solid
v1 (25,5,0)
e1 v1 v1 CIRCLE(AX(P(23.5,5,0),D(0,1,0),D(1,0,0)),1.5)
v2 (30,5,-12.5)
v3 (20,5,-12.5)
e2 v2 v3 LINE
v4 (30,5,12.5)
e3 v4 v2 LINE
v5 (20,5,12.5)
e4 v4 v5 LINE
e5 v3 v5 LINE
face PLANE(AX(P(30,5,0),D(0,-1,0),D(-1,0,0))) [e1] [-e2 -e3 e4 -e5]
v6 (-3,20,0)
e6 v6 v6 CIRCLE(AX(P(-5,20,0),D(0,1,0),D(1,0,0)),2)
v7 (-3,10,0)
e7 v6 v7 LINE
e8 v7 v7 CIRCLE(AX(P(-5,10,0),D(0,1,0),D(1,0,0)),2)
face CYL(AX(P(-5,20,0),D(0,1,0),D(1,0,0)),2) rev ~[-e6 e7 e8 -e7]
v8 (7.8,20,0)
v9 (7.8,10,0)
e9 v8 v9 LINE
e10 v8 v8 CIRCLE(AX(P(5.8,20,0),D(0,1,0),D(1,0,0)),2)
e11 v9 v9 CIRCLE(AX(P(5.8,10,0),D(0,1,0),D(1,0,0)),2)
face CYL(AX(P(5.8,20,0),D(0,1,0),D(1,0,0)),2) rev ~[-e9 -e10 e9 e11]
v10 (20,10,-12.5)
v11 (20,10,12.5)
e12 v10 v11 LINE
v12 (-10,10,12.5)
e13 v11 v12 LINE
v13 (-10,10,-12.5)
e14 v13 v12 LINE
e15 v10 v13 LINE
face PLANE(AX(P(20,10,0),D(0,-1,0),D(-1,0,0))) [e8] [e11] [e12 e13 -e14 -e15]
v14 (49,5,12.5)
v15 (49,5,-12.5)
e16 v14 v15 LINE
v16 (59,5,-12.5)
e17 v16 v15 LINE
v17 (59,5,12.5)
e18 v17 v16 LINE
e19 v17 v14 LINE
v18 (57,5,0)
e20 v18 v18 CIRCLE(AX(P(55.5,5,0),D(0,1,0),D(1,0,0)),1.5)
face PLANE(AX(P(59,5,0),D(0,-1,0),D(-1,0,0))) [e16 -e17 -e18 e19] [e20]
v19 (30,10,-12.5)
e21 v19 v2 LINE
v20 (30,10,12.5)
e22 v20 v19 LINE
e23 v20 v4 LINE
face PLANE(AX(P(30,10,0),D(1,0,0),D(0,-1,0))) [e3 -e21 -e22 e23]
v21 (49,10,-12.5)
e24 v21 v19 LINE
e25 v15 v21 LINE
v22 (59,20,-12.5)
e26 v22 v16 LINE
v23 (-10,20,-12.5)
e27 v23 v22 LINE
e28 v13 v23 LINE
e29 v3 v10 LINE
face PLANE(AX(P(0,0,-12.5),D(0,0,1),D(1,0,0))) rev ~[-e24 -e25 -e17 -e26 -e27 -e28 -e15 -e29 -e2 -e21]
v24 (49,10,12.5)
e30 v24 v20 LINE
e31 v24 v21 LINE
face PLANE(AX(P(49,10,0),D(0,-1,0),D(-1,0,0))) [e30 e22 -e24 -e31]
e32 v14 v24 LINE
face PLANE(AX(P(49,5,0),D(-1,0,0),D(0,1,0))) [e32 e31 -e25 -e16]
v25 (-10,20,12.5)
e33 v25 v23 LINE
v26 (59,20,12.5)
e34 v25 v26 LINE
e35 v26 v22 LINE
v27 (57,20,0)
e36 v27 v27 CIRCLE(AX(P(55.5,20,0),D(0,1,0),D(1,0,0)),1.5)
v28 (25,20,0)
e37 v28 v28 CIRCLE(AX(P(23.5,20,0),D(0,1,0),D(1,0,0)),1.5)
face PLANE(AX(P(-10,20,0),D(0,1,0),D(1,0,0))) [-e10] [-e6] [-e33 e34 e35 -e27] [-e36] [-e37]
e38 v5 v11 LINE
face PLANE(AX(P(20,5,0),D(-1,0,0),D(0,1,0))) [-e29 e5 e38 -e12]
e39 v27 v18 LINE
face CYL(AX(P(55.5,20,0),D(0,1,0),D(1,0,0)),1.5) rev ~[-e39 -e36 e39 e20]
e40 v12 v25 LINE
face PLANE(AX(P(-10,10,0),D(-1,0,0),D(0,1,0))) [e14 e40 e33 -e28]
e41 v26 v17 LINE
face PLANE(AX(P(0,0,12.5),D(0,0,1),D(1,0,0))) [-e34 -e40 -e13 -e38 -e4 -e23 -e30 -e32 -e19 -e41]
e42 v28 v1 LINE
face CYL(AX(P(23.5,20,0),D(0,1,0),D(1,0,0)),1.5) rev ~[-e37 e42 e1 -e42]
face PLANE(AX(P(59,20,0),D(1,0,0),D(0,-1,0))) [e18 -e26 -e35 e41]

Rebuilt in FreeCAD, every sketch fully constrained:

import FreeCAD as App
import Part
import Sketcher


def add_polygon(sketch, points):
    """Adds a closed chain of lines whose ends are joined by coincident constraints."""
    first, n = sketch.GeometryCount, len(points)
    for a, b in zip(points, points[1:] + points[:1]):
        sketch.addGeometry(Part.LineSegment(App.Vector(*a, 0), App.Vector(*b, 0)), False)
    for i in range(n):
        sketch.addConstraint(Sketcher.Constraint("Coincident", first + i, 2, first + (i + 1) % n, 1))

doc = App.newDocument("Part")
body = doc.addObject("PartDesign::Body", "Body")

sketch1 = body.newObject("Sketcher::SketchObject", "Sketch")
sketch1.AttachmentSupport = (doc.getObject("XY_Plane"), [""])
sketch1.MapMode = "FlatFace"
add_polygon(sketch1, [(-10, 20), (-10, 10), (20, 10), (20, 5), (30, 5), (30, 10), (49, 10), (49, 5), (59, 5), (59, 20)])
sketch1.addConstraint(Sketcher.Constraint("Vertical", 0))
sketch1.addConstraint(Sketcher.Constraint("Horizontal", 1))
sketch1.addConstraint(Sketcher.Constraint("Vertical", 2))
sketch1.addConstraint(Sketcher.Constraint("Horizontal", 3))
sketch1.addConstraint(Sketcher.Constraint("Vertical", 4))
sketch1.addConstraint(Sketcher.Constraint("Horizontal", 5))
sketch1.addConstraint(Sketcher.Constraint("Vertical", 6))
sketch1.addConstraint(Sketcher.Constraint("Horizontal", 7))
sketch1.addConstraint(Sketcher.Constraint("Vertical", 8))
sketch1.addConstraint(Sketcher.Constraint("Horizontal", 9))
sketch1.addConstraint(Sketcher.Constraint("Horizontal", 1, 2, 4, 2))
sketch1.addConstraint(Sketcher.Constraint("Horizontal", 3, 2, 6, 2))
sketch1.addConstraint(Sketcher.Constraint("Equal", 3, 7))
sketch1.addConstraint(Sketcher.Constraint("Equal", 7, 0))
sketch1.addConstraint(Sketcher.Constraint("DistanceX", 1, 1, 1, 2, 30.0))
sketch1.addConstraint(Sketcher.Constraint("DistanceX", 3, 1, 3, 2, 10.0))
sketch1.addConstraint(Sketcher.Constraint("DistanceX", 5, 1, 5, 2, 19.0))
sketch1.addConstraint(Sketcher.Constraint("DistanceY", 2, 2, 2, 1, 5.0))
sketch1.addConstraint(Sketcher.Constraint("DistanceX", 0, 2, -1, 1, 10.0))
sketch1.addConstraint(Sketcher.Constraint("DistanceY", -1, 1, 0, 2, 10.0))
pad1 = body.newObject("PartDesign::Pad", "Pad")
pad1.Profile = sketch1
pad1.Length = 25
pad1.Midplane = True

sketch2 = body.newObject("Sketcher::SketchObject", "Sketch001")
sketch2.AttachmentSupport = (doc.getObject("XZ_Plane"), [""])
sketch2.MapMode = "FlatFace"
sketch2.AttachmentOffset = App.Placement(App.Vector(0, 0, -20), App.Rotation())
sketch2.addGeometry(Part.Circle(App.Vector(-5, 0, 0), App.Vector(0, 0, 1), 2), False)
sketch2.addGeometry(Part.Circle(App.Vector(5.8, 0, 0), App.Vector(0, 0, 1), 2), False)
sketch2.addGeometry(Part.Circle(App.Vector(55.5, 0, 0), App.Vector(0, 0, 1), 1.5), False)
sketch2.addGeometry(Part.Circle(App.Vector(23.5, 0, 0), App.Vector(0, 0, 1), 1.5), False)
sketch2.addConstraint(Sketcher.Constraint("Equal", 0, 1))
sketch2.addConstraint(Sketcher.Constraint("Equal", 2, 3))
sketch2.addConstraint(Sketcher.Constraint("PointOnObject", 0, 3, -1))
sketch2.addConstraint(Sketcher.Constraint("PointOnObject", 1, 3, -1))
sketch2.addConstraint(Sketcher.Constraint("PointOnObject", 2, 3, -1))
sketch2.addConstraint(Sketcher.Constraint("PointOnObject", 3, 3, -1))
sketch2.addConstraint(Sketcher.Constraint("Diameter", 0, 4.0))
sketch2.addConstraint(Sketcher.Constraint("Diameter", 2, 3.0))
sketch2.addConstraint(Sketcher.Constraint("DistanceX", 0, 3, -1, 1, 5.0))
sketch2.addConstraint(Sketcher.Constraint("DistanceX", 0, 3, 1, 3, 10.8))
sketch2.addConstraint(Sketcher.Constraint("DistanceX", 3, 3, 2, 3, 32.0))
sketch2.addConstraint(Sketcher.Constraint("DistanceX", -1, 1, 2, 3, 55.5))
pocket1 = body.newObject("PartDesign::Pocket", "Pocket")
pocket1.Profile = sketch2
pocket1.Length = 15
pocket1.Reversed = True

doc.recompute()
